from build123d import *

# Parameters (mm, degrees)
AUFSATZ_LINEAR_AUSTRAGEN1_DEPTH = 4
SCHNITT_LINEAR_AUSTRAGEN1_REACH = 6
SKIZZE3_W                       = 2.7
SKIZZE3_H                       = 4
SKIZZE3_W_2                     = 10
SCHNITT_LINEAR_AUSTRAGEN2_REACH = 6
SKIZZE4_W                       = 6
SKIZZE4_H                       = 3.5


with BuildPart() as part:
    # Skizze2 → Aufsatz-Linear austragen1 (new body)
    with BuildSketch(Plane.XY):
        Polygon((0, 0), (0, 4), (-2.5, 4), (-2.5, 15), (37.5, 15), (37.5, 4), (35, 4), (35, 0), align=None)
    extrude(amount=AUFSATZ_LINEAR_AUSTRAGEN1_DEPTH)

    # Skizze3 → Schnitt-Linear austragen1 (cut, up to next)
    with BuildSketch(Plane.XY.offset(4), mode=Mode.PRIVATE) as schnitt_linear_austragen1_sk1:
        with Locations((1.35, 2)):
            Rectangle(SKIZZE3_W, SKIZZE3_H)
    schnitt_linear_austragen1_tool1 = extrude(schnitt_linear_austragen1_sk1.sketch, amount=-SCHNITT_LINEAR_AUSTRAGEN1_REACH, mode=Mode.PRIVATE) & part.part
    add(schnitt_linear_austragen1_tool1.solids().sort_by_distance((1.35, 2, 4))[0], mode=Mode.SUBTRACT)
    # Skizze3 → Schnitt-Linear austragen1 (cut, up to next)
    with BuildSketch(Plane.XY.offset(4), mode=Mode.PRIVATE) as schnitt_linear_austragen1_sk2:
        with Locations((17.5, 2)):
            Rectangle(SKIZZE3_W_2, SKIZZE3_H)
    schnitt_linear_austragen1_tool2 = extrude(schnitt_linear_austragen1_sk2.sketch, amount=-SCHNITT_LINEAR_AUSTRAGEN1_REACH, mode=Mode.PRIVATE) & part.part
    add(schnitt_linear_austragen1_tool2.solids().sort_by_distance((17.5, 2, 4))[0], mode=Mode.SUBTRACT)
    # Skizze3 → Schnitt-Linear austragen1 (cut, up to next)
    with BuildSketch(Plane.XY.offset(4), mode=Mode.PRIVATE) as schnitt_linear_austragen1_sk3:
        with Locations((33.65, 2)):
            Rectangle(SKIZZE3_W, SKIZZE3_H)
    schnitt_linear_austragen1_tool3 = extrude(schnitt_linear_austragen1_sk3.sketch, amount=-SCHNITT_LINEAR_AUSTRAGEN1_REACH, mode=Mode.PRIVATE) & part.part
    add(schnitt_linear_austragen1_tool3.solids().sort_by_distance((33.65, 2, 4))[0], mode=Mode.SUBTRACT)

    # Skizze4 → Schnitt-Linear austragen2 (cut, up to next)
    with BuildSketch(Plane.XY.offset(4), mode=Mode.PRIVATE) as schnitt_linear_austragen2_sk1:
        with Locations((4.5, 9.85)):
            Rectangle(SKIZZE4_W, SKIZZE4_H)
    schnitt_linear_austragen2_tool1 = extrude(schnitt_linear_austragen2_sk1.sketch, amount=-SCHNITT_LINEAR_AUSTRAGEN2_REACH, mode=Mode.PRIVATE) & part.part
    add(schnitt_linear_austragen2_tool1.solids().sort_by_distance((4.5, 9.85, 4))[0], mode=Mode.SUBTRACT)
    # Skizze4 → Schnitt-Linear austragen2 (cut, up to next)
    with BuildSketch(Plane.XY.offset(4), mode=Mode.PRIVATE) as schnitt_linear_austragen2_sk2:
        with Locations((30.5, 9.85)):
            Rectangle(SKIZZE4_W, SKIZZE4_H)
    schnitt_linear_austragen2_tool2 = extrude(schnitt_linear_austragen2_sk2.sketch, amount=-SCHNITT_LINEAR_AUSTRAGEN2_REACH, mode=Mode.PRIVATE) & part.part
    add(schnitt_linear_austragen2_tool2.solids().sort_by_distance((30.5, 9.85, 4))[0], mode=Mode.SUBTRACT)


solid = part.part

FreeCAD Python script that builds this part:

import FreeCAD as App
import Part
import Sketcher
from FreeCAD import Vector

doc = App.newDocument("Part")
body = doc.addObject("PartDesign::Body", "Body")

# Sketch on XY plane
sketch1 = body.newObject("Sketcher::SketchObject", "Sketch")
sketch1.AttachmentSupport = (doc.getObject("XY_Plane"), [""])
sketch1.MapMode = "FlatFace"
sketch1.addGeometry([
    Part.LineSegment(Vector(0, 4, 0), Vector(0, 0, 0)),  # 0
    Part.LineSegment(Vector(0, 0, 0), Vector(35, 0, 0)),  # 1
    Part.LineSegment(Vector(35, 0, 0), Vector(35, 4, 0)),  # 2
    Part.LineSegment(Vector(35, 4, 0), Vector(37.5, 4, 0)),  # 3
    Part.LineSegment(Vector(37.5, 4, 0), Vector(37.5, 15, 0)),  # 4
    Part.LineSegment(Vector(37.5, 15, 0), Vector(-2.5, 15, 0)),  # 5
    Part.LineSegment(Vector(-2.5, 15, 0), Vector(-2.5, 4, 0)),  # 6
    Part.LineSegment(Vector(-2.5, 4, 0), Vector(0, 4, 0)),  # 7
], False)
sketch1.addConstraint([
    Sketcher.Constraint("Coincident", 0, 2, 1, 1),
    Sketcher.Constraint("Coincident", 1, 2, 2, 1),
    Sketcher.Constraint("Coincident", 2, 2, 3, 1),
    Sketcher.Constraint("Coincident", 3, 2, 4, 1),
    Sketcher.Constraint("Coincident", 4, 2, 5, 1),
    Sketcher.Constraint("Coincident", 5, 2, 6, 1),
    Sketcher.Constraint("Coincident", 6, 2, 7, 1),
    Sketcher.Constraint("Coincident", 7, 2, 0, 1),
    Sketcher.Constraint("Vertical", 0),
    Sketcher.Constraint("Horizontal", 1),
    Sketcher.Constraint("Vertical", 2),
    Sketcher.Constraint("Horizontal", 3),
    Sketcher.Constraint("Vertical", 4),
    Sketcher.Constraint("Horizontal", 5),
    Sketcher.Constraint("Vertical", 6),
    Sketcher.Constraint("Horizontal", 7),
    Sketcher.Constraint("Coincident", 0, 2, -1, 1),
    Sketcher.Constraint("Horizontal", 3, 2, 6, 2),
    Sketcher.Constraint("Equal", 3, 7),
    Sketcher.Constraint("DistanceX", 1, 1, 1, 2, 35.0),
    Sketcher.Constraint("DistanceX", 5, 2, 5, 1, 40.0),
    Sketcher.Constraint("DistanceY", 0, 2, 0, 1, 4.0),
    Sketcher.Constraint("DistanceY", 4, 1, 4, 2, 11.0),
])
pad1 = body.newObject("PartDesign::Pad", "Pad")
pad1.Profile = sketch1
pad1.Length = 4

# Sketch on XY plane
sketch2 = body.newObject("Sketcher::SketchObject", "Sketch001")
sketch2.AttachmentSupport = (doc.getObject("XY_Plane"), [""])
sketch2.MapMode = "FlatFace"
sketch2.AttachmentOffset = App.Placement(Vector(0, 0, 4), App.Rotation())
sketch2.addGeometry([
    Part.LineSegment(Vector(0, 4, 0), Vector(0, 0, 0)),
    Part.LineSegment(Vector(0, 0, 0), Vector(2.7, 0, 0)),
    Part.LineSegment(Vector(2.7, 0, 0), Vector(2.7, 4, 0)),
    Part.LineSegment(Vector(2.7, 4, 0), Vector(0, 4, 0)),
], False)
sketch2.addConstraint([
    Sketcher.Constraint("Coincident", 0, 2, 1, 1),
    Sketcher.Constraint("Coincident", 1, 2, 2, 1),
    Sketcher.Constraint("Coincident", 2, 2, 3, 1),
    Sketcher.Constraint("Coincident", 3, 2, 0, 1),
    Sketcher.Constraint("Vertical", 0),
    Sketcher.Constraint("Horizontal", 1),
    Sketcher.Constraint("Vertical", 2),
    Sketcher.Constraint("Horizontal", 3),
    Sketcher.Constraint("Coincident", 0, 2, -1, 1),
    Sketcher.Constraint("DistanceY", 0, 2, 0, 1, 4.0),
    Sketcher.Constraint("DistanceX", 1, 1, 1, 2, 2.7),
])
pocket1 = body.newObject("PartDesign::Pocket", "Pocket")
pocket1.Profile = sketch2
pocket1.Type = "UpToFirst"

# Sketch on XY plane
sketch3 = body.newObject("Sketcher::SketchObject", "Sketch002")
sketch3.AttachmentSupport = (doc.getObject("XY_Plane"), [""])
sketch3.MapMode = "FlatFace"
sketch3.AttachmentOffset = App.Placement(Vector(0, 0, 4), App.Rotation())
sketch3.addGeometry([
    Part.LineSegment(Vector(12.5, 4, 0), Vector(12.5, 0, 0)),
    Part.LineSegment(Vector(12.5, 0, 0), Vector(22.5, 0, 0)),
    Part.LineSegment(Vector(22.5, 0, 0), Vector(22.5, 4, 0)),
    Part.LineSegment(Vector(22.5, 4, 0), Vector(12.5, 4, 0)),
], False)
sketch3.addConstraint([
    Sketcher.Constraint("Coincident", 0, 2, 1, 1),
    Sketcher.Constraint("Coincident", 1, 2, 2, 1),
    Sketcher.Constraint("Coincident", 2, 2, 3, 1),
    Sketcher.Constraint("Coincident", 3, 2, 0, 1),
    Sketcher.Constraint("Vertical", 0),
    Sketcher.Constraint("Horizontal", 1),
    Sketcher.Constraint("Vertical", 2),
    Sketcher.Constraint("Horizontal", 3),
    Sketcher.Constraint("PointOnObject", 0, 2, -1),
    Sketcher.Constraint("DistanceX", 1, 1, 1, 2, 10.0),
    Sketcher.Constraint("DistanceY", 0, 2, 0, 1, 4.0),
    Sketcher.Constraint("DistanceX", -1, 1, 0, 2, 12.5),
])
pocket2 = body.newObject("PartDesign::Pocket", "Pocket001")
pocket2.Profile = sketch3
pocket2.Type = "UpToFirst"

# Sketch on XY plane
sketch4 = body.newObject("Sketcher::SketchObject", "Sketch003")
sketch4.AttachmentSupport = (doc.getObject("XY_Plane"), [""])
sketch4.MapMode = "FlatFace"
sketch4.AttachmentOffset = App.Placement(Vector(0, 0, 4), App.Rotation())
sketch4.addGeometry([
    Part.LineSegment(Vector(32.3, 4, 0), Vector(32.3, 0, 0)),
    Part.LineSegment(Vector(32.3, 0, 0), Vector(35, 0, 0)),
    Part.LineSegment(Vector(35, 0, 0), Vector(35, 4, 0)),
    Part.LineSegment(Vector(35, 4, 0), Vector(32.3, 4, 0)),
], False)
sketch4.addConstraint([
    Sketcher.Constraint("Coincident", 0, 2, 1, 1),
    Sketcher.Constraint("Coincident", 1, 2, 2, 1),
    Sketcher.Constraint("Coincident", 2, 2, 3, 1),
    Sketcher.Constraint("Coincident", 3, 2, 0, 1),
    Sketcher.Constraint("Vertical", 0),
    Sketcher.Constraint("Horizontal", 1),
    Sketcher.Constraint("Vertical", 2),
    Sketcher.Constraint("Horizontal", 3),
    Sketcher.Constraint("PointOnObject", 0, 2, -1),
    Sketcher.Constraint("DistanceY", 0, 2, 0, 1, 4.0),
    Sketcher.Constraint("DistanceX", 1, 1, 1, 2, 2.7),
    Sketcher.Constraint("DistanceX", -1, 1, 1, 2, 35.0),
])
pocket3 = body.newObject("PartDesign::Pocket", "Pocket002")
pocket3.Profile = sketch4
pocket3.Type = "UpToFirst"

# Sketch on XY plane
sketch5 = body.newObject("Sketcher::SketchObject", "Sketch004")
sketch5.AttachmentSupport = (doc.getObject("XY_Plane"), [""])
sketch5.MapMode = "FlatFace"
sketch5.AttachmentOffset = App.Placement(Vector(0, 0, 4), App.Rotation())
sketch5.addGeometry([
    Part.LineSegment(Vector(1.5, 11.6, 0), Vector(1.5, 8.1, 0)),
    Part.LineSegment(Vector(1.5, 8.1, 0), Vector(7.5, 8.1, 0)),
    Part.LineSegment(Vector(7.5, 8.1, 0), Vector(7.5, 11.6, 0)),
    Part.LineSegment(Vector(7.5, 11.6, 0), Vector(1.5, 11.6, 0)),
], False)
sketch5.addConstraint([
    Sketcher.Constraint("Coincident", 0, 2, 1, 1),
    Sketcher.Constraint("Coincident", 1, 2, 2, 1),
    Sketcher.Constraint("Coincident", 2, 2, 3, 1),
    Sketcher.Constraint("Coincident", 3, 2, 0, 1),
    Sketcher.Constraint("Vertical", 0),
    Sketcher.Constraint("Horizontal", 1),
    Sketcher.Constraint("Vertical", 2),
    Sketcher.Constraint("Horizontal", 3),
    Sketcher.Constraint("DistanceX", 1, 1, 1, 2, 6.0),
    Sketcher.Constraint("DistanceY", 0, 2, 0, 1, 3.5),
    Sketcher.Constraint("DistanceX", -1, 1, 0, 2, 1.5),
    Sketcher.Constraint("DistanceY", -1, 1, 0, 2, 8.1),
])
pocket4 = body.newObject("PartDesign::Pocket", "Pocket003")
pocket4.Profile = sketch5
pocket4.Type = "UpToFirst"

# Sketch on XY plane
sketch6 = body.newObject("Sketcher::SketchObject", "Sketch005")
sketch6.AttachmentSupport = (doc.getObject("XY_Plane"), [""])
sketch6.MapMode = "FlatFace"
sketch6.AttachmentOffset = App.Placement(Vector(0, 0, 4), App.Rotation())
sketch6.addGeometry([
    Part.LineSegment(Vector(27.5, 11.6, 0), Vector(27.5, 8.1, 0)),
    Part.LineSegment(Vector(27.5, 8.1, 0), Vector(33.5, 8.1, 0)),
    Part.LineSegment(Vector(33.5, 8.1, 0), Vector(33.5, 11.6, 0)),
    Part.LineSegment(Vector(33.5, 11.6, 0), Vector(27.5, 11.6, 0)),
], False)
sketch6.addConstraint([
    Sketcher.Constraint("Coincident", 0, 2, 1, 1),
    Sketcher.Constraint("Coincident", 1, 2, 2, 1),
    Sketcher.Constraint("Coincident", 2, 2, 3, 1),
    Sketcher.Constraint("Coincident", 3, 2, 0, 1),
    Sketcher.Constraint("Vertical", 0),
    Sketcher.Constraint("Horizontal", 1),
    Sketcher.Constraint("Vertical", 2),
    Sketcher.Constraint("Horizontal", 3),
    Sketcher.Constraint("DistanceX", 1, 1, 1, 2, 6.0),
    Sketcher.Constraint("DistanceY", 0, 2, 0, 1, 3.5),
    Sketcher.Constraint("DistanceX", -1, 1, 0, 2, 27.5),
    Sketcher.Constraint("DistanceY", -1, 1, 0, 2, 8.1),
])
pocket5 = body.newObject("PartDesign::Pocket", "Pocket004")
pocket5.Profile = sketch6
pocket5.Type = "UpToFirst"

doc.recompute()
